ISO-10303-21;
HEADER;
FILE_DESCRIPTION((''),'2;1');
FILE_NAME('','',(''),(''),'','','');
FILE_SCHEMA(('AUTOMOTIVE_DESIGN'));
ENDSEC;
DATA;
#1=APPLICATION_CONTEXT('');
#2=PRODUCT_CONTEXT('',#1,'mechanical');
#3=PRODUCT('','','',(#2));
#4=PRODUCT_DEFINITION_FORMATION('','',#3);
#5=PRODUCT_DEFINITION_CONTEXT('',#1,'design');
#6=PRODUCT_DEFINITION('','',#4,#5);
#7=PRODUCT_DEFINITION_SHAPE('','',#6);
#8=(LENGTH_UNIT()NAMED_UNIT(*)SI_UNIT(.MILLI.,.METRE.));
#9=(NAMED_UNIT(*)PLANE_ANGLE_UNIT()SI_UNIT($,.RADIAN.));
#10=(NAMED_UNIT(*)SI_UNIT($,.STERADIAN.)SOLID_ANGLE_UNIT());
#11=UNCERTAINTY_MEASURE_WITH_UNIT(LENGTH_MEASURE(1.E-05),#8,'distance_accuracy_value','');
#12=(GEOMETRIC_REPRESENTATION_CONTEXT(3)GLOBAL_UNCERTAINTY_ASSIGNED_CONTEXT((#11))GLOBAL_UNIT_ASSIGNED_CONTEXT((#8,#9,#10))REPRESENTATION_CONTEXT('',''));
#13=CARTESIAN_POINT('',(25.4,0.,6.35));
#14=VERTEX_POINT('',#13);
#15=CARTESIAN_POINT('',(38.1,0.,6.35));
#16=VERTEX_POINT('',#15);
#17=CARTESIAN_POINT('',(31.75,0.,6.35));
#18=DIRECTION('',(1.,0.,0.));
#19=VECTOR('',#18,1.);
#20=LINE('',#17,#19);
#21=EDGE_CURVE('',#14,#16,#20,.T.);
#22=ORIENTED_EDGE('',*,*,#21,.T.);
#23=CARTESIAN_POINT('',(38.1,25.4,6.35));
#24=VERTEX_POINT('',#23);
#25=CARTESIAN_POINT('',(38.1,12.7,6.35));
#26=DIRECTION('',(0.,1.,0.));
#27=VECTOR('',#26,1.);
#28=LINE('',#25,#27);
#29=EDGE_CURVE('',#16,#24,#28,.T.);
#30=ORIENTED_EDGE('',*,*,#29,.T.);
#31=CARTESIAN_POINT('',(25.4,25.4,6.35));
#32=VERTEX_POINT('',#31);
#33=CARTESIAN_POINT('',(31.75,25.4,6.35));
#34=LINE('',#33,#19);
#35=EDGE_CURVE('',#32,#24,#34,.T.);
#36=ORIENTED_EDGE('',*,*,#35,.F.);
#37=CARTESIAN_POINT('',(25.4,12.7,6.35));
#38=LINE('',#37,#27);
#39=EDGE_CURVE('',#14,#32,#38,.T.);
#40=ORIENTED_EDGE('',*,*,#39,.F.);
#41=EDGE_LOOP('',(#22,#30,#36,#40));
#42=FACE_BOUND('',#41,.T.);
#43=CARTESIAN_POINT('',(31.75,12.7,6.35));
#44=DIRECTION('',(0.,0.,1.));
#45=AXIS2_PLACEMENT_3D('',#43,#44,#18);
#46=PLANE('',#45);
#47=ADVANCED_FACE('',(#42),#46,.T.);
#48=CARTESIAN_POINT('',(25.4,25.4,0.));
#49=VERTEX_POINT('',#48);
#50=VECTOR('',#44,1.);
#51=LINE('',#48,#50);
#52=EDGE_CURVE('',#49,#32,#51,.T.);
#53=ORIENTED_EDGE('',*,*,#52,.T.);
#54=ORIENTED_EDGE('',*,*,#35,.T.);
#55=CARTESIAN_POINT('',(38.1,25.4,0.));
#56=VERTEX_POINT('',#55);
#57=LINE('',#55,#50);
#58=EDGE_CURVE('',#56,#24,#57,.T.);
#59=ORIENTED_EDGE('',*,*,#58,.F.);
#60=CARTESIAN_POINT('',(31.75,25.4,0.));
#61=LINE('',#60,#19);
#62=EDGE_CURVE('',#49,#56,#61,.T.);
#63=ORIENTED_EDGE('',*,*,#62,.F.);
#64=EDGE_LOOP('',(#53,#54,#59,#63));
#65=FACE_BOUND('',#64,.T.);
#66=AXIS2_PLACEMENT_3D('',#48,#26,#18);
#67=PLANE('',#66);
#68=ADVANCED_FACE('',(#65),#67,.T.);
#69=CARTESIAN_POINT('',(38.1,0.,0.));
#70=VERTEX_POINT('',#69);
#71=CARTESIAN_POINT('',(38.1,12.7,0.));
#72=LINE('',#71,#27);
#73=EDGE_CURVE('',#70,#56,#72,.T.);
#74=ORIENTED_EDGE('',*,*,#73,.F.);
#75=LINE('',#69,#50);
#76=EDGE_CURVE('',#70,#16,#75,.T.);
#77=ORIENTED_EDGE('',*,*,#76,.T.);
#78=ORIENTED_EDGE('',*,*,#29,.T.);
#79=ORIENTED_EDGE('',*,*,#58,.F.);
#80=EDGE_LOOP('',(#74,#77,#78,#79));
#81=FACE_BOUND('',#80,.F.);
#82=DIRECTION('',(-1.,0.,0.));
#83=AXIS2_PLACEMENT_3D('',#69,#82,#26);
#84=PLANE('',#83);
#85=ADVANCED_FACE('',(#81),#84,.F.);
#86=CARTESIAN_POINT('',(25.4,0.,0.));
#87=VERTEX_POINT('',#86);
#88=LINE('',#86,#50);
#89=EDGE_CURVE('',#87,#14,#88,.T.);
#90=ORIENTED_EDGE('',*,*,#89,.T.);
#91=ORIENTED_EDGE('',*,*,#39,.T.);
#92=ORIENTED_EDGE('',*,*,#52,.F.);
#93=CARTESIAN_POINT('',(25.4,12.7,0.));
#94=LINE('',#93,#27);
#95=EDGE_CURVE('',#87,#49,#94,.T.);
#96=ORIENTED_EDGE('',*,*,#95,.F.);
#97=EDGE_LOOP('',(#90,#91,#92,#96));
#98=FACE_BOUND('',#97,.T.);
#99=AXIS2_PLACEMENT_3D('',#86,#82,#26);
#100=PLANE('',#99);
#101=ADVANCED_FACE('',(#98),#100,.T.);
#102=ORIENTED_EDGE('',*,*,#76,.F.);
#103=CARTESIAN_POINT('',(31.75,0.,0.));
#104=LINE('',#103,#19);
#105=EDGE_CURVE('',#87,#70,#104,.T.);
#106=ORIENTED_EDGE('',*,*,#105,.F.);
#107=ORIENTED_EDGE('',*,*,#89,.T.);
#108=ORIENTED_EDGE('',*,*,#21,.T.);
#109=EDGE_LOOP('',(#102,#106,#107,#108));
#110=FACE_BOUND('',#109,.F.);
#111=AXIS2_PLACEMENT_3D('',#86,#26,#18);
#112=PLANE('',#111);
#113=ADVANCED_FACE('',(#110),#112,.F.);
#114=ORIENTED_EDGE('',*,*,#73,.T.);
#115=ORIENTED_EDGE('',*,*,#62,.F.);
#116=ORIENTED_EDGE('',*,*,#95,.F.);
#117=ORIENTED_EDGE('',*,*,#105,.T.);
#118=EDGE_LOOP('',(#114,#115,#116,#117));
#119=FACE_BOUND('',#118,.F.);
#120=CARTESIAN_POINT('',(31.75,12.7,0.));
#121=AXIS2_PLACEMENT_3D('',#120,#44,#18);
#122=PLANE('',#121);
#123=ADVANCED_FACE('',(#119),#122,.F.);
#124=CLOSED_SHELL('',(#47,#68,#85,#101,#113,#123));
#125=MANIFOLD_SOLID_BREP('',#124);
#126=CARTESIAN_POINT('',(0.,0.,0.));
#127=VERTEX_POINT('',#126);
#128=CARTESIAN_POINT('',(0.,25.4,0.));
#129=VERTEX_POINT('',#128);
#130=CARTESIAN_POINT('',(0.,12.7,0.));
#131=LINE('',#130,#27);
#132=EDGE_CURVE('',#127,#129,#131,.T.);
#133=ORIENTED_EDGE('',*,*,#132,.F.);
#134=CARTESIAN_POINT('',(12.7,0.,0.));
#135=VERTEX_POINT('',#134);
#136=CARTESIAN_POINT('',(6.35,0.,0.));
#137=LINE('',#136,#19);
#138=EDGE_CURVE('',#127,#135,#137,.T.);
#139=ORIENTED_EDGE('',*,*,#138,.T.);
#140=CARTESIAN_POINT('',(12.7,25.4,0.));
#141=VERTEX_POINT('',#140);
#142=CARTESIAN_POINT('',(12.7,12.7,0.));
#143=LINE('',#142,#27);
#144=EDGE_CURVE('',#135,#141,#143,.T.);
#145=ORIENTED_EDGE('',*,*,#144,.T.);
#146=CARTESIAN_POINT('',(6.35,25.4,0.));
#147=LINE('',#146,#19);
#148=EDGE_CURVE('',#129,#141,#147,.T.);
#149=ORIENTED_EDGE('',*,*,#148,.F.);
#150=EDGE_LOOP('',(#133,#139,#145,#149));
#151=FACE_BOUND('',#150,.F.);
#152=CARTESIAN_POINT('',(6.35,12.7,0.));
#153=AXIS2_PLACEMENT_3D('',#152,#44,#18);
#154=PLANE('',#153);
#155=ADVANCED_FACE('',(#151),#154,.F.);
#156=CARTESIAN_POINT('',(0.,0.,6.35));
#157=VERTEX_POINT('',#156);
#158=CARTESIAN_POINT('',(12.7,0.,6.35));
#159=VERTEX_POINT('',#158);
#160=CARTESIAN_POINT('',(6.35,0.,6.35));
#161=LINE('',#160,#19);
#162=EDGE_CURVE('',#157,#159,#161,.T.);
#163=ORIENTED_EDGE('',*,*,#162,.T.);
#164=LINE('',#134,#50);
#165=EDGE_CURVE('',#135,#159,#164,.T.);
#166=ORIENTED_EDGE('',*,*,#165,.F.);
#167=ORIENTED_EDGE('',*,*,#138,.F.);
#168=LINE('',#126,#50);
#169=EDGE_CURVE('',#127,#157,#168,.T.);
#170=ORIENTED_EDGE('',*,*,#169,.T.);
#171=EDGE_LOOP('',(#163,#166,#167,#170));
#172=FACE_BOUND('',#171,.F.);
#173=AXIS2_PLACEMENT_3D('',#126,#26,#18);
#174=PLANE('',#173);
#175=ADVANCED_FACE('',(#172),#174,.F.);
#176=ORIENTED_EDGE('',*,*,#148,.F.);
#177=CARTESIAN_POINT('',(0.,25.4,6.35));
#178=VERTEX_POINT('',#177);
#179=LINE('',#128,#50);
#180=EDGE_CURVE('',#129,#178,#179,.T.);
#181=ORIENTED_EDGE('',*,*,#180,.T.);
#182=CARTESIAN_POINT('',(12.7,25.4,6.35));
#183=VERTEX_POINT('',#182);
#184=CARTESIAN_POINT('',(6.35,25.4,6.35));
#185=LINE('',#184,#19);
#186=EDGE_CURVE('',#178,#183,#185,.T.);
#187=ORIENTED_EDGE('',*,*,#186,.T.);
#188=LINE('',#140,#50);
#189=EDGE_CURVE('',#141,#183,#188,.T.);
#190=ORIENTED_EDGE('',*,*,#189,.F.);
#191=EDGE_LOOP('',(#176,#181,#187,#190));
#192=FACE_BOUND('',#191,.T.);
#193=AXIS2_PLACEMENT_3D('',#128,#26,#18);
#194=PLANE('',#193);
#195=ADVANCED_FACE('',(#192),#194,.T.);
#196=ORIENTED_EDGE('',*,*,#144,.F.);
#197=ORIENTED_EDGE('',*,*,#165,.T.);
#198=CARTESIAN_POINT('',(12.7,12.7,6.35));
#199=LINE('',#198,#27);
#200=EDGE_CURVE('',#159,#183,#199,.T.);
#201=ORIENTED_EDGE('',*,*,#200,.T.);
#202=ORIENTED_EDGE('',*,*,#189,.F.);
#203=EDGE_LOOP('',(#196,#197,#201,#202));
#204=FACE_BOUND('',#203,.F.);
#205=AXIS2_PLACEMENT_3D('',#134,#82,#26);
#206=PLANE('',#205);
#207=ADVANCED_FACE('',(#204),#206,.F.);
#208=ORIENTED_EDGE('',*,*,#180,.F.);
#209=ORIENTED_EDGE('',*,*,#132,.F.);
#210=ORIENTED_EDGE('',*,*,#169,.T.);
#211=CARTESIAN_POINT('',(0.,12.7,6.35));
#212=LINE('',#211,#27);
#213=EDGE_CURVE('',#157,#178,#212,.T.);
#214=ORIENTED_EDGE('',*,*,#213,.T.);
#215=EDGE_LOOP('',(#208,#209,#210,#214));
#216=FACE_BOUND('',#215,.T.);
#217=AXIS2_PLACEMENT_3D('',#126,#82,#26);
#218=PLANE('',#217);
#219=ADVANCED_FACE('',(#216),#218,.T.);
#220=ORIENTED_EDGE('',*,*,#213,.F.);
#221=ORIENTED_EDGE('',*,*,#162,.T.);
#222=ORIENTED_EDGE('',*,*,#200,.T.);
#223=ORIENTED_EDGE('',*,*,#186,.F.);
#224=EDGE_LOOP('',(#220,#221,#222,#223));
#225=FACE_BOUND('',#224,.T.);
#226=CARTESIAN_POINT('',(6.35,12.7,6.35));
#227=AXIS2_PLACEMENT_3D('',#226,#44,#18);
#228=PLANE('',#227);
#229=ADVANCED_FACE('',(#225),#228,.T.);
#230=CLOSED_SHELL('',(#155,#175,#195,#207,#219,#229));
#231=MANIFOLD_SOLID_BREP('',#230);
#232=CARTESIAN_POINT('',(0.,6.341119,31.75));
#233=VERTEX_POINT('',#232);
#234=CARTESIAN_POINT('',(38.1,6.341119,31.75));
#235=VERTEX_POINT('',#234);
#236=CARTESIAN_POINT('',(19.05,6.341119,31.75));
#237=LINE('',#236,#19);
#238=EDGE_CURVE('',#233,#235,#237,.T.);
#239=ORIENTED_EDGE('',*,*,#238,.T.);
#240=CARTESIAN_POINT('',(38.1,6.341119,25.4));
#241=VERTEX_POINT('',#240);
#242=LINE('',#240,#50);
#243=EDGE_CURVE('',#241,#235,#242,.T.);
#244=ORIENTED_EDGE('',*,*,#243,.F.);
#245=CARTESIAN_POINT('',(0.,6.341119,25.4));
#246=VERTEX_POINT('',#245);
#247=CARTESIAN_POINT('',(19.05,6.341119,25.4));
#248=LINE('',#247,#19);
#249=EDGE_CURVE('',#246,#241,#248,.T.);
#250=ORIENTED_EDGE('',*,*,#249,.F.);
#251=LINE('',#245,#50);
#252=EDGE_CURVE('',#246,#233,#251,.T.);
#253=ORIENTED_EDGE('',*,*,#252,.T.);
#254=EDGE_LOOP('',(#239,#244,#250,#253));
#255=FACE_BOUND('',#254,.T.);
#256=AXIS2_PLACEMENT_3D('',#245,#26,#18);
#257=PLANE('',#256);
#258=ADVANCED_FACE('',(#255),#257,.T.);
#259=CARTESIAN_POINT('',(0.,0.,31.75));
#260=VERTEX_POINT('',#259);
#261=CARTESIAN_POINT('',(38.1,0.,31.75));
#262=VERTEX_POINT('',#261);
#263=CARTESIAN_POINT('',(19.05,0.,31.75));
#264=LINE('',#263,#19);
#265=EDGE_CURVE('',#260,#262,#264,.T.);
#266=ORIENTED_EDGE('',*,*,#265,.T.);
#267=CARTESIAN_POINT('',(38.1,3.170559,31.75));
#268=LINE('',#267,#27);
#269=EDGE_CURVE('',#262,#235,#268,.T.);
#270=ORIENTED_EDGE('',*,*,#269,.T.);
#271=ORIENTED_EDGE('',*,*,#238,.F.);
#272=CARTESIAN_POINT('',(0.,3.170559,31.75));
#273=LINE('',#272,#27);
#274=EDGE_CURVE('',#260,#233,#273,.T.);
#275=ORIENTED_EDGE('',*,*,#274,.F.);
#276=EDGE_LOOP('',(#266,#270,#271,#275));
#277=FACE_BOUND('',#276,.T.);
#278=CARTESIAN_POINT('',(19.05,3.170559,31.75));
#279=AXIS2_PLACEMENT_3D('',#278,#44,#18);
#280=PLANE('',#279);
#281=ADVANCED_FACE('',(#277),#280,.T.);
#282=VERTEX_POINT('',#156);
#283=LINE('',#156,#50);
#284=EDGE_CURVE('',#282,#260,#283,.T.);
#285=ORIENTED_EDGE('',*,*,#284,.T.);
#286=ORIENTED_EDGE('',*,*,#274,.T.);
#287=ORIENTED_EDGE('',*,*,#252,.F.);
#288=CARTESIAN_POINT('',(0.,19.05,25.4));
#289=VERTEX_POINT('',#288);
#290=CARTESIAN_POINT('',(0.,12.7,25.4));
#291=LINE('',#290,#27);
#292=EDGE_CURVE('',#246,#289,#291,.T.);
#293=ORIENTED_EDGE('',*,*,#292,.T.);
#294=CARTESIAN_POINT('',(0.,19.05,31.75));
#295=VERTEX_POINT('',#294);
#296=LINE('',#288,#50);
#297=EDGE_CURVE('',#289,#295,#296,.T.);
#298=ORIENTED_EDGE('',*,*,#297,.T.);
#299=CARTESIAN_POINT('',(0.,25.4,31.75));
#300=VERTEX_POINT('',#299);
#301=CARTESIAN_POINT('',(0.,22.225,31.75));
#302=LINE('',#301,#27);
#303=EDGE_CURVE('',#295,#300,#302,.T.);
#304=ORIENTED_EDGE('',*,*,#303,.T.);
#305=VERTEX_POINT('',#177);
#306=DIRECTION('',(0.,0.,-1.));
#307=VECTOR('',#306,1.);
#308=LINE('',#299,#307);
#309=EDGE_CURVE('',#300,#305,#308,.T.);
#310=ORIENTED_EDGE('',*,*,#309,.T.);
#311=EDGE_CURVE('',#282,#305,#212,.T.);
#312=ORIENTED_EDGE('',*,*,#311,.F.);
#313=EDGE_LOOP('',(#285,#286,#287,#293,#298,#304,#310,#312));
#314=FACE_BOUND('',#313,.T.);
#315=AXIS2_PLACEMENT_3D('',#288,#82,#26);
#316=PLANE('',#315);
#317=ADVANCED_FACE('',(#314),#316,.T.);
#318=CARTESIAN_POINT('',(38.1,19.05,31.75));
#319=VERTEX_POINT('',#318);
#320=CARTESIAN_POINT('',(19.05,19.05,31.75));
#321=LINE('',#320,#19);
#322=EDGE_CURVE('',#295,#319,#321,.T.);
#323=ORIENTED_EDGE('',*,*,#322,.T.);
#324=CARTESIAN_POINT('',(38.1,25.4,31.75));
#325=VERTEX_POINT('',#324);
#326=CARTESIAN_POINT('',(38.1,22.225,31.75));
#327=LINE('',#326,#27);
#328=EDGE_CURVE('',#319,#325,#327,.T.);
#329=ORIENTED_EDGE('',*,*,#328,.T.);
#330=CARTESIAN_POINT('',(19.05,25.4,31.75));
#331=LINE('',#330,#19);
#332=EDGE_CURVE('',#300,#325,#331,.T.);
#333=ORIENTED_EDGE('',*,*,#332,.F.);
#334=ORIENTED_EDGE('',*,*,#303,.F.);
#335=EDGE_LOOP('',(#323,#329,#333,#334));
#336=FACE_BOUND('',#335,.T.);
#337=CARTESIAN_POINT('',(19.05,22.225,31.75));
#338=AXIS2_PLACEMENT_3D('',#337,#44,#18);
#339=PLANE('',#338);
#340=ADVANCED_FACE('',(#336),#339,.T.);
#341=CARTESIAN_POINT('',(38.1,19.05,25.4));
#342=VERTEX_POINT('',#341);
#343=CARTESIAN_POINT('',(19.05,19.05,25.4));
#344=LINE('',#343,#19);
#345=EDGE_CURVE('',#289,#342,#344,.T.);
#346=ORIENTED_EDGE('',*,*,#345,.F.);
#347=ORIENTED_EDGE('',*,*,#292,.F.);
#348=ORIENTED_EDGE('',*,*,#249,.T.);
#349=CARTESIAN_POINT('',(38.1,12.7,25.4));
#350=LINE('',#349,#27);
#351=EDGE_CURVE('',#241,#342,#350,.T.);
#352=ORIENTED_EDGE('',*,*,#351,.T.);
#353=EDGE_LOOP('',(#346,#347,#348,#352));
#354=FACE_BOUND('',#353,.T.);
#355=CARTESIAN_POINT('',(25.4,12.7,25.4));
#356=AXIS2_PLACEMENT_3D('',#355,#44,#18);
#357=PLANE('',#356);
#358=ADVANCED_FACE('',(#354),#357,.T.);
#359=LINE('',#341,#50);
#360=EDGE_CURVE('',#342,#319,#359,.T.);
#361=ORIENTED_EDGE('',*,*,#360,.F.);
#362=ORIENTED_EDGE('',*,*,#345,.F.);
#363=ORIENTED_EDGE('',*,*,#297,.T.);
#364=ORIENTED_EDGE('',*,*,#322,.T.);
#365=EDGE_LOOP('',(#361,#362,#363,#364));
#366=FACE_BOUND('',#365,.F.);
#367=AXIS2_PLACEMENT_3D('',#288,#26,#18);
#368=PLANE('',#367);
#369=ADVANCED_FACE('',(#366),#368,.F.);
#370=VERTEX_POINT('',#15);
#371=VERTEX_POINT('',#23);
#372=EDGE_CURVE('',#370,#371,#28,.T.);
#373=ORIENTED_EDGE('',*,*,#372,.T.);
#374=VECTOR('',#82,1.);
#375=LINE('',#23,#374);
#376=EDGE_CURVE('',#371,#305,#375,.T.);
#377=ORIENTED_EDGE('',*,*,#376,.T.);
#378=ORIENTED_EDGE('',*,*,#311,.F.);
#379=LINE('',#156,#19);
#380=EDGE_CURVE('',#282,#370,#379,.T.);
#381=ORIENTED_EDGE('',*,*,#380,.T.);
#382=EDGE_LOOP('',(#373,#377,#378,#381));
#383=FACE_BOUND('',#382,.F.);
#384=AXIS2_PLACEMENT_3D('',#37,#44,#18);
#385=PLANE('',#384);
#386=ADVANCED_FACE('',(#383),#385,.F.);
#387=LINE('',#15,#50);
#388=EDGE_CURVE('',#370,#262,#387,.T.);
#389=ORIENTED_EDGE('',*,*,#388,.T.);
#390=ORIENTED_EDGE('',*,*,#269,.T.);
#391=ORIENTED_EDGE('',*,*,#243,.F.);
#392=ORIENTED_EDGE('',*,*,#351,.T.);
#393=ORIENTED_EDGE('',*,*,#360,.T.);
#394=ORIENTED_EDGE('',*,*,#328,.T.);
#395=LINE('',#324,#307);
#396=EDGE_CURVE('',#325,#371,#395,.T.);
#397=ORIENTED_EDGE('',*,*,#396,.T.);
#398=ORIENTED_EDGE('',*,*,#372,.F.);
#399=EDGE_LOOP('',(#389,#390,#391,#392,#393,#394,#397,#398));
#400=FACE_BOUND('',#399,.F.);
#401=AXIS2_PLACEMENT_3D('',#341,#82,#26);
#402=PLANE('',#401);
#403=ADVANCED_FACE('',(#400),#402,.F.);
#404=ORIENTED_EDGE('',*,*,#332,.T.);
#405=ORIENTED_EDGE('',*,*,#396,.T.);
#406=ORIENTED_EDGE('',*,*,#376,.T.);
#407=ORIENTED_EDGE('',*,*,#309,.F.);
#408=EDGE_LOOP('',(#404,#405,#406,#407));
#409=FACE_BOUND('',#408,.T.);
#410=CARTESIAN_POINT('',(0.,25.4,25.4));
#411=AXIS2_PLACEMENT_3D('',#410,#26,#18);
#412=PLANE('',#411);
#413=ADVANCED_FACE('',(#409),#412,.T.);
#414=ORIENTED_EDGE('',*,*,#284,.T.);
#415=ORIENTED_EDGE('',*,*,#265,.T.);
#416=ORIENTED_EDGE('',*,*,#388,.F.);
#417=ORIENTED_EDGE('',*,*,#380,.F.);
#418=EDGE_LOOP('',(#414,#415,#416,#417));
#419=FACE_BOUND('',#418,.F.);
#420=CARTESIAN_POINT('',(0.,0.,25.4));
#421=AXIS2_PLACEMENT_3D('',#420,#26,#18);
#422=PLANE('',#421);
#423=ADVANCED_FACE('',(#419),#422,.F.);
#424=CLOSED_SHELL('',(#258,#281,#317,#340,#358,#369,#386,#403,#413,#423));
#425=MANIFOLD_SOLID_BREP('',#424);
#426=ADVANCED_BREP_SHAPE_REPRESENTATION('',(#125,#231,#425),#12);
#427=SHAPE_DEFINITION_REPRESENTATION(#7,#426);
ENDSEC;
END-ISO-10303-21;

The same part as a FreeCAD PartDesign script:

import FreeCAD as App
import Part
import Sketcher
Q = App.Units.Quantity


def add_polygon(sketch, points):
    """Adds a closed chain of lines whose ends are joined by coincident constraints."""
    first, n = sketch.GeometryCount, len(points)
    for a, b in zip(points, points[1:] + points[:1]):
        sketch.addGeometry(Part.LineSegment(App.Vector(*a, 0), App.Vector(*b, 0)), False)
    for i in range(n):
        sketch.addConstraint(Sketcher.Constraint("Coincident", first + i, 2, first + (i + 1) % n, 1))

doc = App.newDocument("Part")
body = doc.addObject("PartDesign::Body", "Body")

sketch1 = doc.addObject("Sketcher::SketchObject", "Sketch")
body.addObject(sketch1)
sketch1.AttachmentSupport = (doc.XY_Plane, [""])
sketch1.MapMode = "FlatFace"
add_polygon(sketch1, [(25, 25), (25, 0), (38, 0), (38, 25)])
sketch1.addConstraint(Sketcher.Constraint("Vertical", 0))
sketch1.addConstraint(Sketcher.Constraint("Horizontal", 1))
sketch1.addConstraint(Sketcher.Constraint("Vertical", 2))
sketch1.addConstraint(Sketcher.Constraint("Horizontal", 3))
sketch1.addConstraint(Sketcher.Constraint("PointOnObject", 0, 2, -1))
sketch1.addConstraint(Sketcher.Constraint("DistanceY", 0, 2, 0, 1, Q("1 in")))
sketch1.addConstraint(Sketcher.Constraint("DistanceX", 1, 1, 1, 2, Q("0.5 in")))
sketch1.addConstraint(Sketcher.Constraint("DistanceX", -1, 1, 0, 2, Q("1 in")))
pad1 = doc.addObject("PartDesign::Pad", "Pad")
body.addObject(pad1)
pad1.Profile = sketch1
pad1.Length = Q("0.25 in")
body2 = doc.addObject("PartDesign::Body", "Body001")

sketch2 = doc.addObject("Sketcher::SketchObject", "Sketch001")
body2.addObject(sketch2)
sketch2.AttachmentSupport = (doc.getObject("XY_Plane001"), [""])
sketch2.MapMode = "FlatFace"
add_polygon(sketch2, [(0, 25), (0, 0), (13, 0), (13, 25)])
sketch2.addConstraint(Sketcher.Constraint("Vertical", 0))
sketch2.addConstraint(Sketcher.Constraint("Horizontal", 1))
sketch2.addConstraint(Sketcher.Constraint("Vertical", 2))
sketch2.addConstraint(Sketcher.Constraint("Horizontal", 3))
sketch2.addConstraint(Sketcher.Constraint("Coincident", 0, 2, -1, 1))
sketch2.addConstraint(Sketcher.Constraint("DistanceY", 0, 2, 0, 1, Q("1 in")))
sketch2.addConstraint(Sketcher.Constraint("DistanceX", 1, 1, 1, 2, Q("0.5 in")))
pad2 = doc.addObject("PartDesign::Pad", "Pad001")
body2.addObject(pad2)
pad2.Profile = sketch2
pad2.Length = Q("0.25 in")
body3 = doc.addObject("PartDesign::Body", "Body002")

sketch3 = doc.addObject("Sketcher::SketchObject", "Sketch002")
body3.addObject(sketch3)
sketch3.AttachmentSupport = (doc.getObject("XY_Plane002"), [""])
sketch3.MapMode = "FlatFace"
sketch3.AttachmentOffset = App.Placement(App.Vector(0, 0, 0.25 * 25.4), App.Rotation())
add_polygon(sketch3, [(38, 0), (38, 25), (0, 25), (0, 0)])
sketch3.addConstraint(Sketcher.Constraint("Vertical", 0))
sketch3.addConstraint(Sketcher.Constraint("Horizontal", 1))
sketch3.addConstraint(Sketcher.Constraint("Vertical", 2))
sketch3.addConstraint(Sketcher.Constraint("Horizontal", 3))
sketch3.addConstraint(Sketcher.Constraint("Coincident", 2, 2, -1, 1))
sketch3.addConstraint(Sketcher.Constraint("DistanceY", 0, 1, 0, 2, Q("1 in")))
sketch3.addConstraint(Sketcher.Constraint("DistanceX", 1, 2, 1, 1, Q("1.5 in")))
pad3 = doc.addObject("PartDesign::Pad", "Pad002")
body3.addObject(pad3)
pad3.Profile = sketch3
pad3.Length = Q("0.75 in")

sketch4 = doc.addObject("Sketcher::SketchObject", "Sketch003")
body3.addObject(sketch4)
sketch4.AttachmentSupport = (doc.getObject("XY_Plane002"), [""])
sketch4.MapMode = "FlatFace"
sketch4.AttachmentOffset = App.Placement(App.Vector(0, 0, 1 * 25.4), App.Rotation())
add_polygon(sketch4, [(0, 6), (0, 0), (38, 0), (38, 6)])
sketch4.addConstraint(Sketcher.Constraint("Vertical", 0))
sketch4.addConstraint(Sketcher.Constraint("Horizontal", 1))
sketch4.addConstraint(Sketcher.Constraint("Vertical", 2))
sketch4.addConstraint(Sketcher.Constraint("Horizontal", 3))
sketch4.addConstraint(Sketcher.Constraint("Coincident", 0, 2, -1, 1))
sketch4.addConstraint(Sketcher.Constraint("DistanceX", 1, 1, 1, 2, Q("1.5 in")))
sketch4.addConstraint(Sketcher.Constraint("DistanceY", 0, 2, 0, 1, 6.341119))
pad4 = doc.addObject("PartDesign::Pad", "Pad003")
body3.addObject(pad4)
pad4.Profile = sketch4
pad4.Length = Q("0.25 in")

sketch5 = doc.addObject("Sketcher::SketchObject", "Sketch004")
body3.addObject(sketch5)
sketch5.AttachmentSupport = (doc.getObject("XY_Plane002"), [""])
sketch5.MapMode = "FlatFace"
sketch5.AttachmentOffset = App.Placement(App.Vector(0, 0, 1 * 25.4), App.Rotation())
add_polygon(sketch5, [(0, 25), (0, 19), (38, 19), (38, 25)])
sketch5.addConstraint(Sketcher.Constraint("Vertical", 0))
sketch5.addConstraint(Sketcher.Constraint("Horizontal", 1))
sketch5.addConstraint(Sketcher.Constraint("Vertical", 2))
sketch5.addConstraint(Sketcher.Constraint("Horizontal", 3))
sketch5.addConstraint(Sketcher.Constraint("PointOnObject", 0, 2, -2))
sketch5.addConstraint(Sketcher.Constraint("DistanceX", 1, 1, 1, 2, Q("1.5 in")))
sketch5.addConstraint(Sketcher.Constraint("DistanceY", -1, 1, 2, 2, Q("1 in")))
sketch5.addConstraint(Sketcher.Constraint("DistanceY", 0, 2, 0, 1, Q("0.25 in")))
pad5 = doc.addObject("PartDesign::Pad", "Pad004")
body3.addObject(pad5)
pad5.Profile = sketch5
pad5.Length = Q("0.25 in")

doc.recompute()
